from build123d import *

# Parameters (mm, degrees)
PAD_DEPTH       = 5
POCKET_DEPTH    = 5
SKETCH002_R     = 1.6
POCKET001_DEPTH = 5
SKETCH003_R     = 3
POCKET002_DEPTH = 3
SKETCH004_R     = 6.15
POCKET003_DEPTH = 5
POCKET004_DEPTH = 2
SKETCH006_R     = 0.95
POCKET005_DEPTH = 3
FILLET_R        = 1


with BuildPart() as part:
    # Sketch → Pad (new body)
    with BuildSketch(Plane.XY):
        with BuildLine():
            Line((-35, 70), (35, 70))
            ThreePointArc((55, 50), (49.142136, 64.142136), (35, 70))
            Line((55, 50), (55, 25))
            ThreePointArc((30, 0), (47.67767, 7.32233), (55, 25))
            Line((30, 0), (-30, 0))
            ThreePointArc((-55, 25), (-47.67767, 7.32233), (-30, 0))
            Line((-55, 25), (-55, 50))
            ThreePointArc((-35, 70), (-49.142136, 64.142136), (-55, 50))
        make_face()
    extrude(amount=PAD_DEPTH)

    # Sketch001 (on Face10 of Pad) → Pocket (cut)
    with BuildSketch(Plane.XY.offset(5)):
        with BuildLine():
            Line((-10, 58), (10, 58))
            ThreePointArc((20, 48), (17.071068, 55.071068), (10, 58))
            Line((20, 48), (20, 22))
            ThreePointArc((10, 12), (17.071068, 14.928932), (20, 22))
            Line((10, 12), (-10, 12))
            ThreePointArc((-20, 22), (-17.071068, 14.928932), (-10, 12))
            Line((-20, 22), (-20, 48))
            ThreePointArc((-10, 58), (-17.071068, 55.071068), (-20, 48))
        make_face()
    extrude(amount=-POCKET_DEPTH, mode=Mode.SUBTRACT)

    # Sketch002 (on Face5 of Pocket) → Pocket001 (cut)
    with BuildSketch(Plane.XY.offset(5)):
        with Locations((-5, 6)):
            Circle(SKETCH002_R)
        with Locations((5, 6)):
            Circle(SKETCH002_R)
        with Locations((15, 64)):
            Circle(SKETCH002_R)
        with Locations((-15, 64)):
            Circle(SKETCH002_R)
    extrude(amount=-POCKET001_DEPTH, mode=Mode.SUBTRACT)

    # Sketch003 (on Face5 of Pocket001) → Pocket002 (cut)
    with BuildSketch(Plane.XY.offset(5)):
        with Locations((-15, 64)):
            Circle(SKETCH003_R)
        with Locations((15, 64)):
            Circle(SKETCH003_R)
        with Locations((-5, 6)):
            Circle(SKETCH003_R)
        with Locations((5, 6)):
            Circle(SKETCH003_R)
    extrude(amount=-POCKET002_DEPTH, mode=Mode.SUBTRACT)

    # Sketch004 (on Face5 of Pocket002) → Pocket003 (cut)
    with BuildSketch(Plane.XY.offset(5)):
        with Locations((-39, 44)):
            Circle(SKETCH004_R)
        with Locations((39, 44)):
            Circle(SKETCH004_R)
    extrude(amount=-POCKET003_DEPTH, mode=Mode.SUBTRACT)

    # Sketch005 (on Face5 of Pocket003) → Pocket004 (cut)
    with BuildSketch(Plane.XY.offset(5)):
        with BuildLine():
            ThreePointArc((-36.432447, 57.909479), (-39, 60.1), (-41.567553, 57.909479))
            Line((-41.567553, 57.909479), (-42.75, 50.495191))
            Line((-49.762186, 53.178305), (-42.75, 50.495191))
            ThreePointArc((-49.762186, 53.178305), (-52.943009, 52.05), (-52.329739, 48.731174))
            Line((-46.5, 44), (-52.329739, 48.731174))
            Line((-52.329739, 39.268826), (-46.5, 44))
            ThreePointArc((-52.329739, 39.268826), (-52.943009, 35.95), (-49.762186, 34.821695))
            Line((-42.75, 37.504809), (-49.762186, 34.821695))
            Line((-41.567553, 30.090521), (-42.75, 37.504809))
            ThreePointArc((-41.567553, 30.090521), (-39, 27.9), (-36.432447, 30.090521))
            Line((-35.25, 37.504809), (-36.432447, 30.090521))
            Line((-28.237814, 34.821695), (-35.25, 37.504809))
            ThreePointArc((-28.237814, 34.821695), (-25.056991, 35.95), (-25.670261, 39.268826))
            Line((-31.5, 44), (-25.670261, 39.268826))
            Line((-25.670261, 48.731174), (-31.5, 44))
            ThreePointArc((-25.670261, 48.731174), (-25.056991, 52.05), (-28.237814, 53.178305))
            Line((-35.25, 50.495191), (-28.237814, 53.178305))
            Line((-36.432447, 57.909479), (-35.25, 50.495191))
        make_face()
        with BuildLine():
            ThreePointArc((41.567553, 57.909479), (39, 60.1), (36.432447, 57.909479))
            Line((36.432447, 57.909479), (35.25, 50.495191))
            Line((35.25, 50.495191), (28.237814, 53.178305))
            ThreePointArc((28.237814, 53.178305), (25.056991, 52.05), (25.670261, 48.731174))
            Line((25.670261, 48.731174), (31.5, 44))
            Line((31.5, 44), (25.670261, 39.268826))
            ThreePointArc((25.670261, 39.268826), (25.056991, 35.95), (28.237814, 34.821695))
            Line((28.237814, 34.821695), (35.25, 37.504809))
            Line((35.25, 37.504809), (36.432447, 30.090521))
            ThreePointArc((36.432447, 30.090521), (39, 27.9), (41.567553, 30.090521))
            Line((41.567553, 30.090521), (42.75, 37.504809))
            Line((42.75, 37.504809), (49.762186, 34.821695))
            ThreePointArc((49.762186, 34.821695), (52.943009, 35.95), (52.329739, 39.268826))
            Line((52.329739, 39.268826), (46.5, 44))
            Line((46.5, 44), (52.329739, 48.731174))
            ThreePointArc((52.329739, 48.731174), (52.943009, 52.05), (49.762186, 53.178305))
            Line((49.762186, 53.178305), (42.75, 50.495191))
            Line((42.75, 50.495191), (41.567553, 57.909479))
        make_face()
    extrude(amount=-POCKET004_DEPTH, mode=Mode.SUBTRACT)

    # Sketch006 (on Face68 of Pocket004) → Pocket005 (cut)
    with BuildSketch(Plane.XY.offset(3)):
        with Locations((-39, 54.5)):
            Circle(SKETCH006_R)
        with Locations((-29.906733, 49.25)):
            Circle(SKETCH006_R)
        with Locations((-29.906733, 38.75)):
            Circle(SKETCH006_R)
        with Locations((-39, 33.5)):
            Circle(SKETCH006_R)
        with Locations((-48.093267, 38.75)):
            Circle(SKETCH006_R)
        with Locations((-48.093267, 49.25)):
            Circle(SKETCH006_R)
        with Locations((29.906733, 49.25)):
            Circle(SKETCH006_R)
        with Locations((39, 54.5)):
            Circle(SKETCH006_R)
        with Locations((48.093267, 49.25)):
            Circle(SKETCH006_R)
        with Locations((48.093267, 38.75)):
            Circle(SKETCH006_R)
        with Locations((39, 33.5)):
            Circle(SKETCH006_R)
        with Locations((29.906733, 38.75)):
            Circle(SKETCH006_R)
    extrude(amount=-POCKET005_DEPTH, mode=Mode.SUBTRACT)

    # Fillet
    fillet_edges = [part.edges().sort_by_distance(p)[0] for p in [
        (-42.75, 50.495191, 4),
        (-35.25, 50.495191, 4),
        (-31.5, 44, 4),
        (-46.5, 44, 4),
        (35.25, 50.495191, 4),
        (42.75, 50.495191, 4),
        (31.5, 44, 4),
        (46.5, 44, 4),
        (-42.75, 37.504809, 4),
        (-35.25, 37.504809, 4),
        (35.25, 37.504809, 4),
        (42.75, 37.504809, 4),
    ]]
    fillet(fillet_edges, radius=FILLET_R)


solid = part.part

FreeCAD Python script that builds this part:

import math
import FreeCAD as App
import Part
import Sketcher
from FreeCAD import Vector
Q = App.Units.Quantity


def edges_at(feature, points):
    """Names of the edges that pass closest to the given points."""
    edges = feature.Shape.Edges
    near = lambda p: min(range(len(edges)), key=lambda i: edges[i].distToShape(Part.Vertex(*p))[0])
    return sorted({f"Edge{near(p) + 1}" for p in points})

doc = App.newDocument("Part")
body = doc.addObject("PartDesign::Body", "Body")

# Sketch on XY plane
sketch1 = doc.addObject("Sketcher::SketchObject", "Sketch")
body.addObject(sketch1)
sketch1.AttachmentSupport = (doc.XY_Plane, [""])
sketch1.MapMode = "FlatFace"
sketch1.addGeometry([
    Part.LineSegment(Vector(35, 70, 0), Vector(-35, 70, 0)),  # 0
    Part.ArcOfCircle(Part.Circle(Vector(-35.000001, 50.000001, 0), Vector(0, 0, 1), 19.999999), math.radians(89.999996), math.radians(180.000004)),  # 1
    Part.LineSegment(Vector(-55, 50, 0), Vector(-55, 25, 0)),  # 2
    Part.ArcOfCircle(Part.Circle(Vector(-30.000002, 24.999998, 0), Vector(0, 0, 1), 24.999998), math.radians(179.999996), math.radians(270.000004)),  # 3
    Part.LineSegment(Vector(-30, 0, 0), Vector(30, 0, 0)),  # 4
    Part.ArcOfCircle(Part.Circle(Vector(30.000002, 24.999998, 0), Vector(0, 0, 1), 24.999998), math.radians(-90.000004), math.radians(0.000004)),  # 5
    Part.LineSegment(Vector(55, 25, 0), Vector(55, 50, 0)),  # 6
    Part.ArcOfCircle(Part.Circle(Vector(35.000001, 50.000001, 0), Vector(0, 0, 1), 19.999999), math.radians(-0.000004), math.radians(90.000004)),  # 7
], False)
sketch1.addConstraint([
    Sketcher.Constraint("Tangent", 0, 2, 1, 1),
    Sketcher.Constraint("Tangent", 1, 2, 2, 1),
    Sketcher.Constraint("Tangent", 2, 2, 3, 1),
    Sketcher.Constraint("Tangent", 3, 2, 4, 1),
    Sketcher.Constraint("Tangent", 4, 2, 5, 1),
    Sketcher.Constraint("Tangent", 5, 2, 6, 1),
    Sketcher.Constraint("Tangent", 6, 2, 7, 1),
    Sketcher.Constraint("Tangent", 7, 2, 0, 1),
    Sketcher.Constraint("Horizontal", 0),
    Sketcher.Constraint("Vertical", 2),
    Sketcher.Constraint("Horizontal", 4),
    Sketcher.Constraint("Vertical", 6),
    Sketcher.Constraint("Equal", 3, 5),
    Sketcher.Constraint("Equal", 1, 7),
    Sketcher.Constraint("Symmetric", 3, 2, 4, 2, -1, 1),
    Sketcher.Constraint("Radius", 1, Q("19.999999 mm")),
    Sketcher.Constraint("Radius", 3, Q("24.999998 mm")),
    Sketcher.Constraint("DistanceX", 0, 2, 0, 1, Q("70 mm")),
    Sketcher.Constraint("DistanceY", 2, 2, 2, 1, Q("25 mm")),
])
pad1 = doc.addObject("PartDesign::Pad", "Pad")
body.addObject(pad1)
pad1.Profile = sketch1
pad1.Length = 5

# Sketch on XY plane
sketch2 = doc.addObject("Sketcher::SketchObject", "Sketch001")
body.addObject(sketch2)
sketch2.AttachmentSupport = (doc.XY_Plane, [""])
sketch2.MapMode = "FlatFace"
sketch2.AttachmentOffset = App.Placement(Vector(0, 0, 5), App.Rotation())
sketch2.addGeometry([
    Part.LineSegment(Vector(10, 58, 0), Vector(-10, 58, 0)),  # 0
    Part.ArcOfCircle(Part.Circle(Vector(-10.000001, 48.000001, 0), Vector(0, 0, 1), 9.999999), math.radians(89.999996), math.radians(180.000004)),  # 1
    Part.LineSegment(Vector(-20, 48, 0), Vector(-20, 22, 0)),  # 2
    Part.ArcOfCircle(Part.Circle(Vector(-10.000001, 21.999999, 0), Vector(0, 0, 1), 9.999999), math.radians(179.999996), math.radians(270.000004)),  # 3
    Part.LineSegment(Vector(-10, 12, 0), Vector(10, 12, 0)),  # 4
    Part.ArcOfCircle(Part.Circle(Vector(10.000001, 21.999999, 0), Vector(0, 0, 1), 9.999999), math.radians(-90.000004), math.radians(0.000004)),  # 5
    Part.LineSegment(Vector(20, 22, 0), Vector(20, 48, 0)),  # 6
    Part.ArcOfCircle(Part.Circle(Vector(10.000001, 48.000001, 0), Vector(0, 0, 1), 9.999999), math.radians(-0.000004), math.radians(90.000004)),  # 7
], False)
sketch2.addConstraint([
    Sketcher.Constraint("Tangent", 0, 2, 1, 1),
    Sketcher.Constraint("Tangent", 1, 2, 2, 1),
    Sketcher.Constraint("Tangent", 2, 2, 3, 1),
    Sketcher.Constraint("Tangent", 3, 2, 4, 1),
    Sketcher.Constraint("Tangent", 4, 2, 5, 1),
    Sketcher.Constraint("Tangent", 5, 2, 6, 1),
    Sketcher.Constraint("Tangent", 6, 2, 7, 1),
    Sketcher.Constraint("Tangent", 7, 2, 0, 1),
    Sketcher.Constraint("Horizontal", 0),
    Sketcher.Constraint("Vertical", 2),
    Sketcher.Constraint("Horizontal", 4),
    Sketcher.Constraint("Vertical", 6),
    Sketcher.Constraint("Equal", 1, 3),
    Sketcher.Constraint("Equal", 3, 5),
    Sketcher.Constraint("Equal", 5, 7),
    Sketcher.Constraint("Radius", 1, Q("9.999999 mm")),
    Sketcher.Constraint("DistanceX", 0, 2, 0, 1, Q("20 mm")),
    Sketcher.Constraint("DistanceY", 2, 2, 2, 1, Q("26 mm")),
    Sketcher.Constraint("DistanceX", 1, 3, -1, 1, Q("10.000001 mm")),
    Sketcher.Constraint("DistanceY", -1, 1, 1, 3, Q("48.000001 mm")),
])
pocket1 = doc.addObject("PartDesign::Pocket", "Pocket")
body.addObject(pocket1)
pocket1.Profile = sketch2
pocket1.Length = 5

# Sketch on XY plane
sketch3 = doc.addObject("Sketcher::SketchObject", "Sketch002")
body.addObject(sketch3)
sketch3.AttachmentSupport = (doc.XY_Plane, [""])
sketch3.MapMode = "FlatFace"
sketch3.AttachmentOffset = App.Placement(Vector(0, 0, 5), App.Rotation())
sketch3.addGeometry([
    Part.Circle(Vector(-5, 6, 0), Vector(0, 0, 1), 1.6),
    Part.Circle(Vector(5, 6, 0), Vector(0, 0, 1), 1.6),
    Part.Circle(Vector(15, 64, 0), Vector(0, 0, 1), 1.6),
    Part.Circle(Vector(-15, 64, 0), Vector(0, 0, 1), 1.6),
], False)
sketch3.addConstraint([
    Sketcher.Constraint("Equal", 0, 1),
    Sketcher.Constraint("Equal", 1, 2),
    Sketcher.Constraint("Equal", 2, 3),
    Sketcher.Constraint("Symmetric", 0, 3, 1, 3, -2),
    Sketcher.Constraint("Symmetric", 2, 3, 3, 3, -2),
    Sketcher.Constraint("Diameter", 0, Q("3.2 mm")),
    Sketcher.Constraint("DistanceX", 0, 3, -1, 1, Q("5 mm")),
    Sketcher.Constraint("DistanceY", -1, 1, 0, 3, Q("6 mm")),
    Sketcher.Constraint("DistanceX", -1, 1, 2, 3, Q("15 mm")),
    Sketcher.Constraint("DistanceY", -1, 1, 2, 3, Q("64 mm")),
])
pocket2 = doc.addObject("PartDesign::Pocket", "Pocket001")
body.addObject(pocket2)
pocket2.Profile = sketch3
pocket2.Length = 5

# Sketch on XY plane
sketch4 = doc.addObject("Sketcher::SketchObject", "Sketch003")
body.addObject(sketch4)
sketch4.AttachmentSupport = (doc.XY_Plane, [""])
sketch4.MapMode = "FlatFace"
sketch4.AttachmentOffset = App.Placement(Vector(0, 0, 5), App.Rotation())
sketch4.addGeometry([
    Part.Circle(Vector(-15, 64, 0), Vector(0, 0, 1), 3),
    Part.Circle(Vector(15, 64, 0), Vector(0, 0, 1), 3),
    Part.Circle(Vector(-5, 6, 0), Vector(0, 0, 1), 3),
    Part.Circle(Vector(5, 6, 0), Vector(0, 0, 1), 3),
], False)
sketch4.addConstraint([
    Sketcher.Constraint("Equal", 0, 1),
    Sketcher.Constraint("Equal", 1, 2),
    Sketcher.Constraint("Equal", 2, 3),
    Sketcher.Constraint("Symmetric", 0, 3, 1, 3, -2),
    Sketcher.Constraint("Symmetric", 2, 3, 3, 3, -2),
    Sketcher.Constraint("Diameter", 0, Q("6 mm")),
    Sketcher.Constraint("DistanceX", 0, 3, -1, 1, Q("15 mm")),
    Sketcher.Constraint("DistanceY", -1, 1, 0, 3, Q("64 mm")),
    Sketcher.Constraint("DistanceX", 2, 3, -1, 1, Q("5 mm")),
    Sketcher.Constraint("DistanceY", -1, 1, 2, 3, Q("6 mm")),
])
pocket3 = doc.addObject("PartDesign::Pocket", "Pocket002")
body.addObject(pocket3)
pocket3.Profile = sketch4
pocket3.Length = 3

# Sketch on XY plane
sketch5 = doc.addObject("Sketcher::SketchObject", "Sketch004")
body.addObject(sketch5)
sketch5.AttachmentSupport = (doc.XY_Plane, [""])
sketch5.MapMode = "FlatFace"
sketch5.AttachmentOffset = App.Placement(Vector(0, 0, 5), App.Rotation())
sketch5.addGeometry([
    Part.Circle(Vector(-39, 44, 0), Vector(0, 0, 1), 6.15),
    Part.Circle(Vector(39, 44, 0), Vector(0, 0, 1), 6.15),
], False)
sketch5.addConstraint([
    Sketcher.Constraint("Equal", 0, 1),
    Sketcher.Constraint("Symmetric", 0, 3, 1, 3, -2),
    Sketcher.Constraint("Diameter", 0, Q("12.3 mm")),
    Sketcher.Constraint("DistanceX", 0, 3, -1, 1, Q("39 mm")),
    Sketcher.Constraint("DistanceY", -1, 1, 0, 3, Q("44 mm")),
])
pocket4 = doc.addObject("PartDesign::Pocket", "Pocket003")
body.addObject(pocket4)
pocket4.Profile = sketch5
pocket4.Length = 5

# Sketch on XY plane
sketch6 = doc.addObject("Sketcher::SketchObject", "Sketch005")
body.addObject(sketch6)
sketch6.AttachmentSupport = (doc.XY_Plane, [""])
sketch6.MapMode = "FlatFace"
sketch6.AttachmentOffset = App.Placement(Vector(0, 0, 5), App.Rotation())
sketch6.addGeometry([
    Part.ArcOfCircle(Part.Circle(Vector(-39, 57.5, 0), Vector(0, 0, 1), 2.6), math.radians(9.061355), math.radians(170.938645)),  # 0
    Part.LineSegment(Vector(-41.567553, 57.909479, 0), Vector(-42.75, 50.495191, 0)),  # 1
    Part.LineSegment(Vector(-42.75, 50.495191, 0), Vector(-49.762186, 53.178305, 0)),  # 2
    Part.ArcOfCircle(Part.Circle(Vector(-50.691343, 50.75, 0), Vector(0, 0, 1), 2.6), math.radians(69.061343), math.radians(230.938643)),  # 3
    Part.LineSegment(Vector(-52.329739, 48.731174, 0), Vector(-46.5, 44, 0)),  # 4
    Part.LineSegment(Vector(-46.5, 44, 0), Vector(-52.329739, 39.268826, 0)),  # 5
    Part.ArcOfCircle(Part.Circle(Vector(-50.691343, 37.25, 0), Vector(0, 0, 1), 2.6), math.radians(129.061357), math.radians(290.938657)),  # 6
    Part.LineSegment(Vector(-49.762186, 34.821695, 0), Vector(-42.75, 37.504809, 0)),  # 7
    Part.LineSegment(Vector(-42.75, 37.504809, 0), Vector(-41.567553, 30.090521, 0)),  # 8
    Part.ArcOfCircle(Part.Circle(Vector(-39, 30.5, 0), Vector(0, 0, 1), 2.6), math.radians(-170.938645), math.radians(-9.061355)),  # 9
    Part.LineSegment(Vector(-36.432447, 30.090521, 0), Vector(-35.25, 37.504809, 0)),  # 10
    Part.LineSegment(Vector(-35.25, 37.504809, 0), Vector(-28.237814, 34.821695, 0)),  # 11
    Part.ArcOfCircle(Part.Circle(Vector(-27.308657, 37.25, 0), Vector(0, 0, 1), 2.6), math.radians(-110.938657), math.radians(50.938643)),  # 12
    Part.LineSegment(Vector(-25.670261, 39.268826, 0), Vector(-31.5, 44, 0)),  # 13
    Part.LineSegment(Vector(-31.5, 44, 0), Vector(-25.670261, 48.731174, 0)),  # 14
    Part.ArcOfCircle(Part.Circle(Vector(-27.308657, 50.75, 0), Vector(0, 0, 1), 2.6), math.radians(-50.938643), math.radians(110.938657)),  # 15
    Part.LineSegment(Vector(-28.237814, 53.178305, 0), Vector(-35.25, 50.495191, 0)),  # 16
    Part.LineSegment(Vector(-35.25, 50.495191, 0), Vector(-36.432447, 57.909479, 0)),  # 17
    Part.ArcOfCircle(Part.Circle(Vector(39, 57.5, 0), Vector(0, 0, 1), 2.6), math.radians(9.061355), math.radians(170.938645)),  # 18
    Part.LineSegment(Vector(36.432447, 57.909479, 0), Vector(35.25, 50.495191, 0)),  # 19
    Part.LineSegment(Vector(35.25, 50.495191, 0), Vector(28.237814, 53.178305, 0)),  # 20
    Part.ArcOfCircle(Part.Circle(Vector(27.308657, 50.75, 0), Vector(0, 0, 1), 2.6), math.radians(69.061343), math.radians(230.938643)),  # 21
    Part.LineSegment(Vector(25.670261, 48.731174, 0), Vector(31.5, 44, 0)),  # 22
    Part.LineSegment(Vector(31.5, 44, 0), Vector(25.670261, 39.268826, 0)),  # 23
    Part.ArcOfCircle(Part.Circle(Vector(27.308657, 37.25, 0), Vector(0, 0, 1), 2.6), math.radians(129.061357), math.radians(290.938657)),  # 24
    Part.LineSegment(Vector(28.237814, 34.821695, 0), Vector(35.25, 37.504809, 0)),  # 25
    Part.LineSegment(Vector(35.25, 37.504809, 0), Vector(36.432447, 30.090521, 0)),  # 26
    Part.ArcOfCircle(Part.Circle(Vector(39, 30.5, 0), Vector(0, 0, 1), 2.6), math.radians(-170.938645), math.radians(-9.061355)),  # 27
    Part.LineSegment(Vector(41.567553, 30.090521, 0), Vector(42.75, 37.504809, 0)),  # 28
    Part.LineSegment(Vector(42.75, 37.504809, 0), Vector(49.762186, 34.821695, 0)),  # 29
    Part.ArcOfCircle(Part.Circle(Vector(50.691343, 37.25, 0), Vector(0, 0, 1), 2.6), math.radians(-110.938657), math.radians(50.938643)),  # 30
    Part.LineSegment(Vector(52.329739, 39.268826, 0), Vector(46.5, 44, 0)),  # 31
    Part.LineSegment(Vector(46.5, 44, 0), Vector(52.329739, 48.731174, 0)),  # 32
    Part.ArcOfCircle(Part.Circle(Vector(50.691343, 50.75, 0), Vector(0, 0, 1), 2.6), math.radians(-50.938643), math.radians(110.938657)),  # 33
    Part.LineSegment(Vector(49.762186, 53.178305, 0), Vector(42.75, 50.495191, 0)),  # 34
    Part.LineSegment(Vector(42.75, 50.495191, 0), Vector(41.567553, 57.909479, 0)),  # 35
], False)
sketch6.addConstraint([
    Sketcher.Constraint("Tangent", 0, 2, 1, 1),
    Sketcher.Constraint("Coincident", 1, 2, 2, 1),
    Sketcher.Constraint("Tangent", 2, 2, 3, 1),
    Sketcher.Constraint("Tangent", 3, 2, 4, 1),
    Sketcher.Constraint("Coincident", 4, 2, 5, 1),
    Sketcher.Constraint("Tangent", 5, 2, 6, 1),
    Sketcher.Constraint("Tangent", 6, 2, 7, 1),
    Sketcher.Constraint("Coincident", 7, 2, 8, 1),
    Sketcher.Constraint("Tangent", 8, 2, 9, 1),
    Sketcher.Constraint("Tangent", 9, 2, 10, 1),
    Sketcher.Constraint("Coincident", 10, 2, 11, 1),
    Sketcher.Constraint("Tangent", 11, 2, 12, 1),
    Sketcher.Constraint("Tangent", 12, 2, 13, 1),
    Sketcher.Constraint("Coincident", 13, 2, 14, 1),
    Sketcher.Constraint("Tangent", 14, 2, 15, 1),
    Sketcher.Constraint("Tangent", 15, 2, 16, 1),
    Sketcher.Constraint("Coincident", 16, 2, 17, 1),
    Sketcher.Constraint("Tangent", 17, 2, 0, 1),
    Sketcher.Constraint("Tangent", 18, 2, 19, 1),
    Sketcher.Constraint("Coincident", 19, 2, 20, 1),
    Sketcher.Constraint("Tangent", 20, 2, 21, 1),
    Sketcher.Constraint("Tangent", 21, 2, 22, 1),
    Sketcher.Constraint("Coincident", 22, 2, 23, 1),
    Sketcher.Constraint("Tangent", 23, 2, 24, 1),
    Sketcher.Constraint("Tangent", 24, 2, 25, 1),
    Sketcher.Constraint("Coincident", 25, 2, 26, 1),
    Sketcher.Constraint("Tangent", 26, 2, 27, 1),
    Sketcher.Constraint("Tangent", 27, 2, 28, 1),
    Sketcher.Constraint("Coincident", 28, 2, 29, 1),
    Sketcher.Constraint("Tangent", 29, 2, 30, 1),
    Sketcher.Constraint("Tangent", 30, 2, 31, 1),
    Sketcher.Constraint("Coincident", 31, 2, 32, 1),
    Sketcher.Constraint("Tangent", 32, 2, 33, 1),
    Sketcher.Constraint("Tangent", 33, 2, 34, 1),
    Sketcher.Constraint("Coincident", 34, 2, 35, 1),
    Sketcher.Constraint("Tangent", 35, 2, 18, 1),
    Sketcher.Constraint("Equal", 0, 3),
    Sketcher.Constraint("Equal", 3, 6),
    Sketcher.Constraint("Equal", 6, 9),
    Sketcher.Constraint("Equal", 9, 12),
    Sketcher.Constraint("Equal", 12, 15),
    Sketcher.Constraint("Equal", 15, 18),
    Sketcher.Constraint("Equal", 18, 21),
    Sketcher.Constraint("Equal", 21, 24),
    Sketcher.Constraint("Equal", 24, 27),
    Sketcher.Constraint("Equal", 27, 30),
    Sketcher.Constraint("Equal", 30, 33),
    Sketcher.Constraint("Symmetric", 0, 3, 18, 3, -2),
    Sketcher.Constraint("Symmetric", 15, 3, 21, 3, -2),
    Sketcher.Constraint("Symmetric", 12, 3, 24, 3, -2),
    Sketcher.Constraint("Symmetric", 9, 3, 27, 3, -2),
    Sketcher.Constraint("Symmetric", 6, 3, 30, 3, -2),
    Sketcher.Constraint("Symmetric", 3, 3, 33, 3, -2),
    Sketcher.Constraint("Symmetric", 16, 2, 19, 2, -2),
    Sketcher.Constraint("Symmetric", 13, 2, 22, 2, -2),
    Sketcher.Constraint("Symmetric", 10, 2, 25, 2, -2),
    Sketcher.Constraint("Symmetric", 7, 2, 28, 2, -2),
    Sketcher.Constraint("Symmetric", 4, 2, 31, 2, -2),
    Sketcher.Constraint("Symmetric", 1, 2, 34, 2, -2),
    Sketcher.Constraint("Parallel", 1, 10),
    Sketcher.Constraint("Parallel", 2, 11),
    Sketcher.Constraint("Parallel", 4, 13),
    Sketcher.Constraint("Parallel", 5, 14),
    Sketcher.Constraint("Parallel", 7, 16),
    Sketcher.Constraint("Parallel", 8, 17),
    Sketcher.Constraint("Parallel", 10, 19),
    Sketcher.Constraint("Parallel", 11, 20),
    Sketcher.Constraint("Parallel", 13, 22),
    Sketcher.Constraint("Horizontal", 6, 3, 12, 3),
    Sketcher.Constraint("Horizontal", 3, 3, 15, 3),
    Sketcher.Constraint("Horizontal", 7, 2, 10, 2),
    Sketcher.Constraint("Horizontal", 4, 2, 13, 2),
    Sketcher.Constraint("Horizontal", 1, 2, 16, 2),
    Sketcher.Constraint("Vertical", 3, 3, 6, 3),
    Sketcher.Constraint("Vertical", 1, 2, 7, 2),
    Sketcher.Constraint("Equal", 1, 2),
    Sketcher.Constraint("Equal", 2, 4),
    Sketcher.Constraint("Radius", 0, Q("2.6 mm")),
    Sketcher.Constraint("DistanceX", 0, 3, -1, 1, Q("39 mm")),
    Sketcher.Constraint("DistanceY", -1, 1, 4, 2, Q("44 mm")),
    Sketcher.Constraint("DistanceY", 9, 3, 0, 3, Q("26.999999 mm")),
    Sketcher.Constraint("DistanceX", 4, 2, -1, 1, Q("46.5 mm")),
    Sketcher.Constraint("DistanceY", 6, 3, 3, 3, Q("13.5 mm")),
    Sketcher.Constraint("DistanceX", 7, 2, 10, 2, Q("7.5 mm")),
])
pocket5 = doc.addObject("PartDesign::Pocket", "Pocket004")
body.addObject(pocket5)
pocket5.Profile = sketch6
pocket5.Length = 2

# Sketch on XY plane
sketch7 = doc.addObject("Sketcher::SketchObject", "Sketch006")
body.addObject(sketch7)
sketch7.AttachmentSupport = (doc.XY_Plane, [""])
sketch7.MapMode = "FlatFace"
sketch7.AttachmentOffset = App.Placement(Vector(0, 0, 3), App.Rotation())
sketch7.addGeometry([
    Part.Circle(Vector(-39, 54.5, 0), Vector(0, 0, 1), 0.95),  # 0
    Part.Circle(Vector(-29.906733, 49.25, 0), Vector(0, 0, 1), 0.95),  # 1
    Part.Circle(Vector(-29.906733, 38.75, 0), Vector(0, 0, 1), 0.95),  # 2
    Part.Circle(Vector(-39, 33.5, 0), Vector(0, 0, 1), 0.95),  # 3
    Part.Circle(Vector(-48.093267, 38.75, 0), Vector(0, 0, 1), 0.95),  # 4
    Part.Circle(Vector(-48.093267, 49.25, 0), Vector(0, 0, 1), 0.95),  # 5
    Part.Circle(Vector(29.906733, 49.25, 0), Vector(0, 0, 1), 0.95),  # 6
    Part.Circle(Vector(39, 54.5, 0), Vector(0, 0, 1), 0.95),  # 7
    Part.Circle(Vector(48.093267, 49.25, 0), Vector(0, 0, 1), 0.95),  # 8
    Part.Circle(Vector(48.093267, 38.75, 0), Vector(0, 0, 1), 0.95),  # 9
    Part.Circle(Vector(39, 33.5, 0), Vector(0, 0, 1), 0.95),  # 10
    Part.Circle(Vector(29.906733, 38.75, 0), Vector(0, 0, 1), 0.95),  # 11
], False)
sketch7.addConstraint([
    Sketcher.Constraint("Equal", 0, 1),
    Sketcher.Constraint("Equal", 1, 2),
    Sketcher.Constraint("Equal", 2, 3),
    Sketcher.Constraint("Equal", 3, 4),
    Sketcher.Constraint("Equal", 4, 5),
    Sketcher.Constraint("Equal", 5, 6),
    Sketcher.Constraint("Equal", 6, 7),
    Sketcher.Constraint("Equal", 7, 8),
    Sketcher.Constraint("Equal", 8, 9),
    Sketcher.Constraint("Equal", 9, 10),
    Sketcher.Constraint("Equal", 10, 11),
    Sketcher.Constraint("Symmetric", 1, 3, 6, 3, -2),
    Sketcher.Constraint("Symmetric", 0, 3, 7, 3, -2),
    Sketcher.Constraint("Symmetric", 5, 3, 8, 3, -2),
    Sketcher.Constraint("Symmetric", 4, 3, 9, 3, -2),
    Sketcher.Constraint("Symmetric", 3, 3, 10, 3, -2),
    Sketcher.Constraint("Symmetric", 2, 3, 11, 3, -2),
    Sketcher.Constraint("Horizontal", 2, 3, 4, 3),
    Sketcher.Constraint("Horizontal", 1, 3, 5, 3),
    Sketcher.Constraint("Vertical", 1, 3, 2, 3),
    Sketcher.Constraint("Vertical", 0, 3, 3, 3),
    Sketcher.Constraint("Vertical", 4, 3, 5, 3),
    Sketcher.Constraint("Diameter", 0, Q("1.9 mm")),
    Sketcher.Constraint("DistanceX", 0, 3, -1, 1, Q("39 mm")),
    Sketcher.Constraint("DistanceY", 3, 3, 0, 3, Q("21 mm")),
    Sketcher.Constraint("DistanceX", 5, 3, 6, 3, Q("78 mm")),
    Sketcher.Constraint("DistanceY", -1, 1, 0, 3, Q("54.5 mm")),
    Sketcher.Constraint("DistanceY", 2, 3, 1, 3, Q("10.5 mm")),
    Sketcher.Constraint("DistanceY", -1, 1, 1, 3, Q("49.25 mm")),
    Sketcher.Constraint("DistanceX", 1, 3, -1, 1, Q("29.906733 mm")),
])
pocket6 = doc.addObject("PartDesign::Pocket", "Pocket005")
body.addObject(pocket6)
pocket6.Profile = sketch7
pocket6.Length = 3
doc.recompute()

fillet = doc.addObject("PartDesign::Fillet", "Fillet")
body.addObject(fillet)
fillet.Base = (pocket6, edges_at(pocket6, [
    (-42.75, 50.495, 4),
    (-35.25, 50.495, 4),
    (-31.5, 44, 4),
    (-46.5, 44, 4),
    (35.25, 50.495, 4),
    (42.75, 50.495, 4),
    (31.5, 44, 4),
    (46.5, 44, 4),
    (-42.75, 37.505, 4),
    (-35.25, 37.505, 4),
    (35.25, 37.505, 4),
    (42.75, 37.505, 4),
]))
fillet.Radius = 1

doc.recompute()
